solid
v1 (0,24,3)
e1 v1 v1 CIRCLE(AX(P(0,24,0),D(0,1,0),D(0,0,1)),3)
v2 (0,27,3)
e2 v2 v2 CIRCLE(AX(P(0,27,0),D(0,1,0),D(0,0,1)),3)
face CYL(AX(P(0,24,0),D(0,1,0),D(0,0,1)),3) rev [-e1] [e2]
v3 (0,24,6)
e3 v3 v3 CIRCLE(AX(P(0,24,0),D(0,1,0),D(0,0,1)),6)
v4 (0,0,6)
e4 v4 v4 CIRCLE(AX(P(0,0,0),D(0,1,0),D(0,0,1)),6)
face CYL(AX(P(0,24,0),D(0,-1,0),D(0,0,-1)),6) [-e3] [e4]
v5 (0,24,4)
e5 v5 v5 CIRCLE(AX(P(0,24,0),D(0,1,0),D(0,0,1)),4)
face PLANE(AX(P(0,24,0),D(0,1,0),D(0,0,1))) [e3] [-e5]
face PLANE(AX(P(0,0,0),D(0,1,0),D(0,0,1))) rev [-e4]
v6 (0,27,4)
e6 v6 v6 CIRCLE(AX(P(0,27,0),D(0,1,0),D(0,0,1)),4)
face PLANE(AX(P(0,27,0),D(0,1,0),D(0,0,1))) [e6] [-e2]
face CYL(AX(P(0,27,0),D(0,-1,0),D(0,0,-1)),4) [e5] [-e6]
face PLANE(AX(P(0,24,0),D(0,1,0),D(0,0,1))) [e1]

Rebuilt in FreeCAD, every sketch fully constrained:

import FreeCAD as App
import Part
import Sketcher
from FreeCAD import Vector
Q = App.Units.Quantity

doc = App.newDocument("Part")
params = doc.addObject("Spreadsheet::Sheet", "Params")
for row, (alias, value) in enumerate([
    ("sketch1_diameter", "12 mm"),
    ("pad1_length", "24 mm"),
    ("sketch2_diameter", "8 mm"),
    ("pad2_length", "3 mm"),
    ("sketch3_diameter", "6 mm"),
    ("pocket1_length", "3 mm"),
], start=1):
    params.set(f"A{row}", alias)
    params.set(f"B{row}", "=" + value)
    params.setAlias(f"B{row}", alias)

body = doc.addObject("PartDesign::Body", "Body")

# Sketch on XZ plane
sketch1 = body.newObject("Sketcher::SketchObject", "Sketch")
sketch1.AttachmentSupport = (doc.getObject("XZ_Plane"), [""])
sketch1.MapMode = "FlatFace"
sketch1.addGeometry(Part.Circle(Vector(0, 0, 0), Vector(0, 0, 1), 6), False)
sketch1.addConstraint([
    Sketcher.Constraint("Coincident", 0, 3, -1, 1),
    Sketcher.Constraint("Diameter", 0, Q("12 mm")),
])
sketch1.setExpression("Constraints[1]", "Params.sketch1_diameter")
pad1 = body.newObject("PartDesign::Pad", "Pad")
pad1.Profile = sketch1
pad1.setExpression("Length", "Params.pad1_length")
pad1.Reversed = True

# Sketch on XZ plane
sketch2 = body.newObject("Sketcher::SketchObject", "Sketch001")
sketch2.AttachmentSupport = (doc.getObject("XZ_Plane"), [""])
sketch2.MapMode = "FlatFace"
sketch2.AttachmentOffset = App.Placement(Vector(0, 0, -24), App.Rotation())
sketch2.addGeometry(Part.Circle(Vector(0, 0, 0), Vector(0, 0, 1), 4), False)
sketch2.addConstraint([
    Sketcher.Constraint("Coincident", 0, 3, -1, 1),
    Sketcher.Constraint("Diameter", 0, Q("8 mm")),
])
sketch2.setExpression("Constraints[1]", "Params.sketch2_diameter")
pad2 = body.newObject("PartDesign::Pad", "Pad001")
pad2.Profile = sketch2
pad2.setExpression("Length", "Params.pad2_length")
pad2.Reversed = True

# Sketch on XZ plane
sketch3 = body.newObject("Sketcher::SketchObject", "Sketch002")
sketch3.AttachmentSupport = (doc.getObject("XZ_Plane"), [""])
sketch3.MapMode = "FlatFace"
sketch3.AttachmentOffset = App.Placement(Vector(0, 0, -27), App.Rotation())
sketch3.addGeometry(Part.Circle(Vector(0, 0, 0), Vector(0, 0, 1), 3), False)
sketch3.addConstraint([
    Sketcher.Constraint("Coincident", 0, 3, -1, 1),
    Sketcher.Constraint("Diameter", 0, Q("6 mm")),
])
sketch3.setExpression("Constraints[1]", "Params.sketch3_diameter")
pocket1 = body.newObject("PartDesign::Pocket", "Pocket")
pocket1.Profile = sketch3
pocket1.setExpression("Length", "Params.pocket1_length")
pocket1.Reversed = True

doc.recompute()
